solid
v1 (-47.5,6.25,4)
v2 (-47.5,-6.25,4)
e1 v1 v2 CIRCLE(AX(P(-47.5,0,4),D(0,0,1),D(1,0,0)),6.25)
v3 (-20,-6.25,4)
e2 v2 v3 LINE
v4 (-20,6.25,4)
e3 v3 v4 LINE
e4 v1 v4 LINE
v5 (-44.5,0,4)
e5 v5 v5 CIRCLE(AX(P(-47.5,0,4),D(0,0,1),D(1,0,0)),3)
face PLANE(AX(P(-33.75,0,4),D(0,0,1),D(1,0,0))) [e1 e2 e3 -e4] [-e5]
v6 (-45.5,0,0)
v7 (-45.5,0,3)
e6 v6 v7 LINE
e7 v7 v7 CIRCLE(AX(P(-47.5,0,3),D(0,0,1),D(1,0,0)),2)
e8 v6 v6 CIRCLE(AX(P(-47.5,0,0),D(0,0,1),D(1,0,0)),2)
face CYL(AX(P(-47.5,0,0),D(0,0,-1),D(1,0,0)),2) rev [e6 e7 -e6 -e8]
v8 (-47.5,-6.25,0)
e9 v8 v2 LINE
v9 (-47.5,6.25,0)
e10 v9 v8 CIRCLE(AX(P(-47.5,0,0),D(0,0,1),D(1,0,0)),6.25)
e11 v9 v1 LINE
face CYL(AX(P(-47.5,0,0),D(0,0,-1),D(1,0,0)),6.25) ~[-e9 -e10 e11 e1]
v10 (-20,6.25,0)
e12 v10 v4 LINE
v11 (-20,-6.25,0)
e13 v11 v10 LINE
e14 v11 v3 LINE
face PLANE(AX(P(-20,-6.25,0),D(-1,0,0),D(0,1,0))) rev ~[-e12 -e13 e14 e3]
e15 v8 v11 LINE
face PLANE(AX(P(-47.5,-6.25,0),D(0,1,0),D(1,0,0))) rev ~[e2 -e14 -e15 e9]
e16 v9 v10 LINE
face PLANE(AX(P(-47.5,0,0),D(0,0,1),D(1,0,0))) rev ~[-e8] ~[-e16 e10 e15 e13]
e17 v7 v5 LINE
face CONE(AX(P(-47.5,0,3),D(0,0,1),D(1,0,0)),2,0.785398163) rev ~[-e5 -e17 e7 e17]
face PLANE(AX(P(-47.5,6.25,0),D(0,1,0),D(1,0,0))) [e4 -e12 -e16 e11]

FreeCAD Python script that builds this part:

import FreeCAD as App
import Part
import Sketcher
from FreeCAD import Vector
Q = App.Units.Quantity


def edges_at(feature, points):
    """Names of the edges that pass closest to the given points."""
    edges = feature.Shape.Edges
    near = lambda p: min(range(len(edges)), key=lambda i: edges[i].distToShape(Part.Vertex(*p))[0])
    return sorted({f"Edge{near(p) + 1}" for p in points})

doc = App.newDocument("Part")
body = doc.addObject("PartDesign::Body", "Body")

# Sketch on XY plane
sketch1 = doc.addObject("Sketcher::SketchObject", "Sketch")
body.addObject(sketch1)
sketch1.AttachmentSupport = (doc.XY_Plane, [""])
sketch1.MapMode = "FlatFace"
sketch1.addGeometry(Part.Circle(Vector(-47.5, 0, 0), Vector(0, 0, 1), 2), False)
sketch1.addConstraint(Sketcher.Constraint("PointOnObject", 0, 3, -1))
sketch1.addConstraint(Sketcher.Constraint("Diameter", 0, Q("4 mm")))
sketch1.addConstraint(Sketcher.Constraint("DistanceX", 0, 3, -1, 1, Q("47.5 mm")))
pad1 = doc.addObject("PartDesign::Pad", "Pad")
body.addObject(pad1)
pad1.Profile = sketch1
pad1.Length = 4
body2 = doc.addObject("PartDesign::Body", "Body001")

# Sketch on XY plane
sketch2 = doc.addObject("Sketcher::SketchObject", "Sketch001")
body2.addObject(sketch2)
sketch2.AttachmentSupport = (doc.getObject("XY_Plane001"), [""])
sketch2.MapMode = "FlatFace"
sketch2.addGeometry(Part.LineSegment(Vector(-48, 6, 0), Vector(-48, -6, 0)), False)
sketch2.addGeometry(Part.LineSegment(Vector(-48, -6, 0), Vector(-20, -6, 0)), False)
sketch2.addGeometry(Part.LineSegment(Vector(-20, -6, 0), Vector(-20, 6, 0)), False)
sketch2.addGeometry(Part.LineSegment(Vector(-20, 6, 0), Vector(-48, 6, 0)), False)
sketch2.addConstraint(Sketcher.Constraint("Coincident", 0, 2, 1, 1))
sketch2.addConstraint(Sketcher.Constraint("Coincident", 1, 2, 2, 1))
sketch2.addConstraint(Sketcher.Constraint("Coincident", 2, 2, 3, 1))
sketch2.addConstraint(Sketcher.Constraint("Coincident", 3, 2, 0, 1))
sketch2.addConstraint(Sketcher.Constraint("Vertical", 0))
sketch2.addConstraint(Sketcher.Constraint("Horizontal", 1))
sketch2.addConstraint(Sketcher.Constraint("Vertical", 2))
sketch2.addConstraint(Sketcher.Constraint("Horizontal", 3))
sketch2.addConstraint(Sketcher.Constraint("DistanceX", 1, 1, 1, 2, Q("27.5 mm")))
sketch2.addConstraint(Sketcher.Constraint("DistanceY", 0, 2, 0, 1, Q("12.5 mm")))
sketch2.addConstraint(Sketcher.Constraint("DistanceX", 1, 2, -1, 1, Q("20 mm")))
sketch2.addConstraint(Sketcher.Constraint("DistanceY", 0, 2, -1, 1, Q("6.25 mm")))
pad2 = doc.addObject("PartDesign::Pad", "Pad001")
body2.addObject(pad2)
pad2.Profile = sketch2
pad2.Length = 4
body3 = doc.addObject("PartDesign::Body", "Body002")

# Sketch on XY plane
sketch3 = doc.addObject("Sketcher::SketchObject", "Sketch002")
body3.addObject(sketch3)
sketch3.AttachmentSupport = (doc.getObject("XY_Plane002"), [""])
sketch3.MapMode = "FlatFace"
sketch3.addGeometry(Part.Circle(Vector(-48, 0, 0), Vector(0, 0, 1), 6), False)
sketch3.addConstraint(Sketcher.Constraint("PointOnObject", 0, 3, -1))
sketch3.addConstraint(Sketcher.Constraint("Diameter", 0, Q("12.5 mm")))
sketch3.addConstraint(Sketcher.Constraint("DistanceX", 0, 3, -1, 1, Q("47.5 mm")))
pad3 = doc.addObject("PartDesign::Pad", "Pad002")
body3.addObject(pad3)
pad3.Profile = sketch3
pad3.Length = 4
doc.recompute()

boolean = doc.addObject("PartDesign::Boolean", "Boolean")
body3.addObject(boolean)
boolean.Type = "Fuse"
boolean.addObjects([body2])
doc.recompute()

boolean2 = doc.addObject("PartDesign::Boolean", "Boolean001")
body3.addObject(boolean2)
boolean2.Type = "Cut"
boolean2.addObjects([body])
doc.recompute()

chamfer = doc.addObject("PartDesign::Chamfer", "Chamfer")
body3.addObject(chamfer)
chamfer.Base = (boolean2, edges_at(boolean2, [(-49.5, 0, 4), (-49.5, 0, 4), (-49.5, 0, 4)]))
chamfer.Size = 1

doc.recompute()
